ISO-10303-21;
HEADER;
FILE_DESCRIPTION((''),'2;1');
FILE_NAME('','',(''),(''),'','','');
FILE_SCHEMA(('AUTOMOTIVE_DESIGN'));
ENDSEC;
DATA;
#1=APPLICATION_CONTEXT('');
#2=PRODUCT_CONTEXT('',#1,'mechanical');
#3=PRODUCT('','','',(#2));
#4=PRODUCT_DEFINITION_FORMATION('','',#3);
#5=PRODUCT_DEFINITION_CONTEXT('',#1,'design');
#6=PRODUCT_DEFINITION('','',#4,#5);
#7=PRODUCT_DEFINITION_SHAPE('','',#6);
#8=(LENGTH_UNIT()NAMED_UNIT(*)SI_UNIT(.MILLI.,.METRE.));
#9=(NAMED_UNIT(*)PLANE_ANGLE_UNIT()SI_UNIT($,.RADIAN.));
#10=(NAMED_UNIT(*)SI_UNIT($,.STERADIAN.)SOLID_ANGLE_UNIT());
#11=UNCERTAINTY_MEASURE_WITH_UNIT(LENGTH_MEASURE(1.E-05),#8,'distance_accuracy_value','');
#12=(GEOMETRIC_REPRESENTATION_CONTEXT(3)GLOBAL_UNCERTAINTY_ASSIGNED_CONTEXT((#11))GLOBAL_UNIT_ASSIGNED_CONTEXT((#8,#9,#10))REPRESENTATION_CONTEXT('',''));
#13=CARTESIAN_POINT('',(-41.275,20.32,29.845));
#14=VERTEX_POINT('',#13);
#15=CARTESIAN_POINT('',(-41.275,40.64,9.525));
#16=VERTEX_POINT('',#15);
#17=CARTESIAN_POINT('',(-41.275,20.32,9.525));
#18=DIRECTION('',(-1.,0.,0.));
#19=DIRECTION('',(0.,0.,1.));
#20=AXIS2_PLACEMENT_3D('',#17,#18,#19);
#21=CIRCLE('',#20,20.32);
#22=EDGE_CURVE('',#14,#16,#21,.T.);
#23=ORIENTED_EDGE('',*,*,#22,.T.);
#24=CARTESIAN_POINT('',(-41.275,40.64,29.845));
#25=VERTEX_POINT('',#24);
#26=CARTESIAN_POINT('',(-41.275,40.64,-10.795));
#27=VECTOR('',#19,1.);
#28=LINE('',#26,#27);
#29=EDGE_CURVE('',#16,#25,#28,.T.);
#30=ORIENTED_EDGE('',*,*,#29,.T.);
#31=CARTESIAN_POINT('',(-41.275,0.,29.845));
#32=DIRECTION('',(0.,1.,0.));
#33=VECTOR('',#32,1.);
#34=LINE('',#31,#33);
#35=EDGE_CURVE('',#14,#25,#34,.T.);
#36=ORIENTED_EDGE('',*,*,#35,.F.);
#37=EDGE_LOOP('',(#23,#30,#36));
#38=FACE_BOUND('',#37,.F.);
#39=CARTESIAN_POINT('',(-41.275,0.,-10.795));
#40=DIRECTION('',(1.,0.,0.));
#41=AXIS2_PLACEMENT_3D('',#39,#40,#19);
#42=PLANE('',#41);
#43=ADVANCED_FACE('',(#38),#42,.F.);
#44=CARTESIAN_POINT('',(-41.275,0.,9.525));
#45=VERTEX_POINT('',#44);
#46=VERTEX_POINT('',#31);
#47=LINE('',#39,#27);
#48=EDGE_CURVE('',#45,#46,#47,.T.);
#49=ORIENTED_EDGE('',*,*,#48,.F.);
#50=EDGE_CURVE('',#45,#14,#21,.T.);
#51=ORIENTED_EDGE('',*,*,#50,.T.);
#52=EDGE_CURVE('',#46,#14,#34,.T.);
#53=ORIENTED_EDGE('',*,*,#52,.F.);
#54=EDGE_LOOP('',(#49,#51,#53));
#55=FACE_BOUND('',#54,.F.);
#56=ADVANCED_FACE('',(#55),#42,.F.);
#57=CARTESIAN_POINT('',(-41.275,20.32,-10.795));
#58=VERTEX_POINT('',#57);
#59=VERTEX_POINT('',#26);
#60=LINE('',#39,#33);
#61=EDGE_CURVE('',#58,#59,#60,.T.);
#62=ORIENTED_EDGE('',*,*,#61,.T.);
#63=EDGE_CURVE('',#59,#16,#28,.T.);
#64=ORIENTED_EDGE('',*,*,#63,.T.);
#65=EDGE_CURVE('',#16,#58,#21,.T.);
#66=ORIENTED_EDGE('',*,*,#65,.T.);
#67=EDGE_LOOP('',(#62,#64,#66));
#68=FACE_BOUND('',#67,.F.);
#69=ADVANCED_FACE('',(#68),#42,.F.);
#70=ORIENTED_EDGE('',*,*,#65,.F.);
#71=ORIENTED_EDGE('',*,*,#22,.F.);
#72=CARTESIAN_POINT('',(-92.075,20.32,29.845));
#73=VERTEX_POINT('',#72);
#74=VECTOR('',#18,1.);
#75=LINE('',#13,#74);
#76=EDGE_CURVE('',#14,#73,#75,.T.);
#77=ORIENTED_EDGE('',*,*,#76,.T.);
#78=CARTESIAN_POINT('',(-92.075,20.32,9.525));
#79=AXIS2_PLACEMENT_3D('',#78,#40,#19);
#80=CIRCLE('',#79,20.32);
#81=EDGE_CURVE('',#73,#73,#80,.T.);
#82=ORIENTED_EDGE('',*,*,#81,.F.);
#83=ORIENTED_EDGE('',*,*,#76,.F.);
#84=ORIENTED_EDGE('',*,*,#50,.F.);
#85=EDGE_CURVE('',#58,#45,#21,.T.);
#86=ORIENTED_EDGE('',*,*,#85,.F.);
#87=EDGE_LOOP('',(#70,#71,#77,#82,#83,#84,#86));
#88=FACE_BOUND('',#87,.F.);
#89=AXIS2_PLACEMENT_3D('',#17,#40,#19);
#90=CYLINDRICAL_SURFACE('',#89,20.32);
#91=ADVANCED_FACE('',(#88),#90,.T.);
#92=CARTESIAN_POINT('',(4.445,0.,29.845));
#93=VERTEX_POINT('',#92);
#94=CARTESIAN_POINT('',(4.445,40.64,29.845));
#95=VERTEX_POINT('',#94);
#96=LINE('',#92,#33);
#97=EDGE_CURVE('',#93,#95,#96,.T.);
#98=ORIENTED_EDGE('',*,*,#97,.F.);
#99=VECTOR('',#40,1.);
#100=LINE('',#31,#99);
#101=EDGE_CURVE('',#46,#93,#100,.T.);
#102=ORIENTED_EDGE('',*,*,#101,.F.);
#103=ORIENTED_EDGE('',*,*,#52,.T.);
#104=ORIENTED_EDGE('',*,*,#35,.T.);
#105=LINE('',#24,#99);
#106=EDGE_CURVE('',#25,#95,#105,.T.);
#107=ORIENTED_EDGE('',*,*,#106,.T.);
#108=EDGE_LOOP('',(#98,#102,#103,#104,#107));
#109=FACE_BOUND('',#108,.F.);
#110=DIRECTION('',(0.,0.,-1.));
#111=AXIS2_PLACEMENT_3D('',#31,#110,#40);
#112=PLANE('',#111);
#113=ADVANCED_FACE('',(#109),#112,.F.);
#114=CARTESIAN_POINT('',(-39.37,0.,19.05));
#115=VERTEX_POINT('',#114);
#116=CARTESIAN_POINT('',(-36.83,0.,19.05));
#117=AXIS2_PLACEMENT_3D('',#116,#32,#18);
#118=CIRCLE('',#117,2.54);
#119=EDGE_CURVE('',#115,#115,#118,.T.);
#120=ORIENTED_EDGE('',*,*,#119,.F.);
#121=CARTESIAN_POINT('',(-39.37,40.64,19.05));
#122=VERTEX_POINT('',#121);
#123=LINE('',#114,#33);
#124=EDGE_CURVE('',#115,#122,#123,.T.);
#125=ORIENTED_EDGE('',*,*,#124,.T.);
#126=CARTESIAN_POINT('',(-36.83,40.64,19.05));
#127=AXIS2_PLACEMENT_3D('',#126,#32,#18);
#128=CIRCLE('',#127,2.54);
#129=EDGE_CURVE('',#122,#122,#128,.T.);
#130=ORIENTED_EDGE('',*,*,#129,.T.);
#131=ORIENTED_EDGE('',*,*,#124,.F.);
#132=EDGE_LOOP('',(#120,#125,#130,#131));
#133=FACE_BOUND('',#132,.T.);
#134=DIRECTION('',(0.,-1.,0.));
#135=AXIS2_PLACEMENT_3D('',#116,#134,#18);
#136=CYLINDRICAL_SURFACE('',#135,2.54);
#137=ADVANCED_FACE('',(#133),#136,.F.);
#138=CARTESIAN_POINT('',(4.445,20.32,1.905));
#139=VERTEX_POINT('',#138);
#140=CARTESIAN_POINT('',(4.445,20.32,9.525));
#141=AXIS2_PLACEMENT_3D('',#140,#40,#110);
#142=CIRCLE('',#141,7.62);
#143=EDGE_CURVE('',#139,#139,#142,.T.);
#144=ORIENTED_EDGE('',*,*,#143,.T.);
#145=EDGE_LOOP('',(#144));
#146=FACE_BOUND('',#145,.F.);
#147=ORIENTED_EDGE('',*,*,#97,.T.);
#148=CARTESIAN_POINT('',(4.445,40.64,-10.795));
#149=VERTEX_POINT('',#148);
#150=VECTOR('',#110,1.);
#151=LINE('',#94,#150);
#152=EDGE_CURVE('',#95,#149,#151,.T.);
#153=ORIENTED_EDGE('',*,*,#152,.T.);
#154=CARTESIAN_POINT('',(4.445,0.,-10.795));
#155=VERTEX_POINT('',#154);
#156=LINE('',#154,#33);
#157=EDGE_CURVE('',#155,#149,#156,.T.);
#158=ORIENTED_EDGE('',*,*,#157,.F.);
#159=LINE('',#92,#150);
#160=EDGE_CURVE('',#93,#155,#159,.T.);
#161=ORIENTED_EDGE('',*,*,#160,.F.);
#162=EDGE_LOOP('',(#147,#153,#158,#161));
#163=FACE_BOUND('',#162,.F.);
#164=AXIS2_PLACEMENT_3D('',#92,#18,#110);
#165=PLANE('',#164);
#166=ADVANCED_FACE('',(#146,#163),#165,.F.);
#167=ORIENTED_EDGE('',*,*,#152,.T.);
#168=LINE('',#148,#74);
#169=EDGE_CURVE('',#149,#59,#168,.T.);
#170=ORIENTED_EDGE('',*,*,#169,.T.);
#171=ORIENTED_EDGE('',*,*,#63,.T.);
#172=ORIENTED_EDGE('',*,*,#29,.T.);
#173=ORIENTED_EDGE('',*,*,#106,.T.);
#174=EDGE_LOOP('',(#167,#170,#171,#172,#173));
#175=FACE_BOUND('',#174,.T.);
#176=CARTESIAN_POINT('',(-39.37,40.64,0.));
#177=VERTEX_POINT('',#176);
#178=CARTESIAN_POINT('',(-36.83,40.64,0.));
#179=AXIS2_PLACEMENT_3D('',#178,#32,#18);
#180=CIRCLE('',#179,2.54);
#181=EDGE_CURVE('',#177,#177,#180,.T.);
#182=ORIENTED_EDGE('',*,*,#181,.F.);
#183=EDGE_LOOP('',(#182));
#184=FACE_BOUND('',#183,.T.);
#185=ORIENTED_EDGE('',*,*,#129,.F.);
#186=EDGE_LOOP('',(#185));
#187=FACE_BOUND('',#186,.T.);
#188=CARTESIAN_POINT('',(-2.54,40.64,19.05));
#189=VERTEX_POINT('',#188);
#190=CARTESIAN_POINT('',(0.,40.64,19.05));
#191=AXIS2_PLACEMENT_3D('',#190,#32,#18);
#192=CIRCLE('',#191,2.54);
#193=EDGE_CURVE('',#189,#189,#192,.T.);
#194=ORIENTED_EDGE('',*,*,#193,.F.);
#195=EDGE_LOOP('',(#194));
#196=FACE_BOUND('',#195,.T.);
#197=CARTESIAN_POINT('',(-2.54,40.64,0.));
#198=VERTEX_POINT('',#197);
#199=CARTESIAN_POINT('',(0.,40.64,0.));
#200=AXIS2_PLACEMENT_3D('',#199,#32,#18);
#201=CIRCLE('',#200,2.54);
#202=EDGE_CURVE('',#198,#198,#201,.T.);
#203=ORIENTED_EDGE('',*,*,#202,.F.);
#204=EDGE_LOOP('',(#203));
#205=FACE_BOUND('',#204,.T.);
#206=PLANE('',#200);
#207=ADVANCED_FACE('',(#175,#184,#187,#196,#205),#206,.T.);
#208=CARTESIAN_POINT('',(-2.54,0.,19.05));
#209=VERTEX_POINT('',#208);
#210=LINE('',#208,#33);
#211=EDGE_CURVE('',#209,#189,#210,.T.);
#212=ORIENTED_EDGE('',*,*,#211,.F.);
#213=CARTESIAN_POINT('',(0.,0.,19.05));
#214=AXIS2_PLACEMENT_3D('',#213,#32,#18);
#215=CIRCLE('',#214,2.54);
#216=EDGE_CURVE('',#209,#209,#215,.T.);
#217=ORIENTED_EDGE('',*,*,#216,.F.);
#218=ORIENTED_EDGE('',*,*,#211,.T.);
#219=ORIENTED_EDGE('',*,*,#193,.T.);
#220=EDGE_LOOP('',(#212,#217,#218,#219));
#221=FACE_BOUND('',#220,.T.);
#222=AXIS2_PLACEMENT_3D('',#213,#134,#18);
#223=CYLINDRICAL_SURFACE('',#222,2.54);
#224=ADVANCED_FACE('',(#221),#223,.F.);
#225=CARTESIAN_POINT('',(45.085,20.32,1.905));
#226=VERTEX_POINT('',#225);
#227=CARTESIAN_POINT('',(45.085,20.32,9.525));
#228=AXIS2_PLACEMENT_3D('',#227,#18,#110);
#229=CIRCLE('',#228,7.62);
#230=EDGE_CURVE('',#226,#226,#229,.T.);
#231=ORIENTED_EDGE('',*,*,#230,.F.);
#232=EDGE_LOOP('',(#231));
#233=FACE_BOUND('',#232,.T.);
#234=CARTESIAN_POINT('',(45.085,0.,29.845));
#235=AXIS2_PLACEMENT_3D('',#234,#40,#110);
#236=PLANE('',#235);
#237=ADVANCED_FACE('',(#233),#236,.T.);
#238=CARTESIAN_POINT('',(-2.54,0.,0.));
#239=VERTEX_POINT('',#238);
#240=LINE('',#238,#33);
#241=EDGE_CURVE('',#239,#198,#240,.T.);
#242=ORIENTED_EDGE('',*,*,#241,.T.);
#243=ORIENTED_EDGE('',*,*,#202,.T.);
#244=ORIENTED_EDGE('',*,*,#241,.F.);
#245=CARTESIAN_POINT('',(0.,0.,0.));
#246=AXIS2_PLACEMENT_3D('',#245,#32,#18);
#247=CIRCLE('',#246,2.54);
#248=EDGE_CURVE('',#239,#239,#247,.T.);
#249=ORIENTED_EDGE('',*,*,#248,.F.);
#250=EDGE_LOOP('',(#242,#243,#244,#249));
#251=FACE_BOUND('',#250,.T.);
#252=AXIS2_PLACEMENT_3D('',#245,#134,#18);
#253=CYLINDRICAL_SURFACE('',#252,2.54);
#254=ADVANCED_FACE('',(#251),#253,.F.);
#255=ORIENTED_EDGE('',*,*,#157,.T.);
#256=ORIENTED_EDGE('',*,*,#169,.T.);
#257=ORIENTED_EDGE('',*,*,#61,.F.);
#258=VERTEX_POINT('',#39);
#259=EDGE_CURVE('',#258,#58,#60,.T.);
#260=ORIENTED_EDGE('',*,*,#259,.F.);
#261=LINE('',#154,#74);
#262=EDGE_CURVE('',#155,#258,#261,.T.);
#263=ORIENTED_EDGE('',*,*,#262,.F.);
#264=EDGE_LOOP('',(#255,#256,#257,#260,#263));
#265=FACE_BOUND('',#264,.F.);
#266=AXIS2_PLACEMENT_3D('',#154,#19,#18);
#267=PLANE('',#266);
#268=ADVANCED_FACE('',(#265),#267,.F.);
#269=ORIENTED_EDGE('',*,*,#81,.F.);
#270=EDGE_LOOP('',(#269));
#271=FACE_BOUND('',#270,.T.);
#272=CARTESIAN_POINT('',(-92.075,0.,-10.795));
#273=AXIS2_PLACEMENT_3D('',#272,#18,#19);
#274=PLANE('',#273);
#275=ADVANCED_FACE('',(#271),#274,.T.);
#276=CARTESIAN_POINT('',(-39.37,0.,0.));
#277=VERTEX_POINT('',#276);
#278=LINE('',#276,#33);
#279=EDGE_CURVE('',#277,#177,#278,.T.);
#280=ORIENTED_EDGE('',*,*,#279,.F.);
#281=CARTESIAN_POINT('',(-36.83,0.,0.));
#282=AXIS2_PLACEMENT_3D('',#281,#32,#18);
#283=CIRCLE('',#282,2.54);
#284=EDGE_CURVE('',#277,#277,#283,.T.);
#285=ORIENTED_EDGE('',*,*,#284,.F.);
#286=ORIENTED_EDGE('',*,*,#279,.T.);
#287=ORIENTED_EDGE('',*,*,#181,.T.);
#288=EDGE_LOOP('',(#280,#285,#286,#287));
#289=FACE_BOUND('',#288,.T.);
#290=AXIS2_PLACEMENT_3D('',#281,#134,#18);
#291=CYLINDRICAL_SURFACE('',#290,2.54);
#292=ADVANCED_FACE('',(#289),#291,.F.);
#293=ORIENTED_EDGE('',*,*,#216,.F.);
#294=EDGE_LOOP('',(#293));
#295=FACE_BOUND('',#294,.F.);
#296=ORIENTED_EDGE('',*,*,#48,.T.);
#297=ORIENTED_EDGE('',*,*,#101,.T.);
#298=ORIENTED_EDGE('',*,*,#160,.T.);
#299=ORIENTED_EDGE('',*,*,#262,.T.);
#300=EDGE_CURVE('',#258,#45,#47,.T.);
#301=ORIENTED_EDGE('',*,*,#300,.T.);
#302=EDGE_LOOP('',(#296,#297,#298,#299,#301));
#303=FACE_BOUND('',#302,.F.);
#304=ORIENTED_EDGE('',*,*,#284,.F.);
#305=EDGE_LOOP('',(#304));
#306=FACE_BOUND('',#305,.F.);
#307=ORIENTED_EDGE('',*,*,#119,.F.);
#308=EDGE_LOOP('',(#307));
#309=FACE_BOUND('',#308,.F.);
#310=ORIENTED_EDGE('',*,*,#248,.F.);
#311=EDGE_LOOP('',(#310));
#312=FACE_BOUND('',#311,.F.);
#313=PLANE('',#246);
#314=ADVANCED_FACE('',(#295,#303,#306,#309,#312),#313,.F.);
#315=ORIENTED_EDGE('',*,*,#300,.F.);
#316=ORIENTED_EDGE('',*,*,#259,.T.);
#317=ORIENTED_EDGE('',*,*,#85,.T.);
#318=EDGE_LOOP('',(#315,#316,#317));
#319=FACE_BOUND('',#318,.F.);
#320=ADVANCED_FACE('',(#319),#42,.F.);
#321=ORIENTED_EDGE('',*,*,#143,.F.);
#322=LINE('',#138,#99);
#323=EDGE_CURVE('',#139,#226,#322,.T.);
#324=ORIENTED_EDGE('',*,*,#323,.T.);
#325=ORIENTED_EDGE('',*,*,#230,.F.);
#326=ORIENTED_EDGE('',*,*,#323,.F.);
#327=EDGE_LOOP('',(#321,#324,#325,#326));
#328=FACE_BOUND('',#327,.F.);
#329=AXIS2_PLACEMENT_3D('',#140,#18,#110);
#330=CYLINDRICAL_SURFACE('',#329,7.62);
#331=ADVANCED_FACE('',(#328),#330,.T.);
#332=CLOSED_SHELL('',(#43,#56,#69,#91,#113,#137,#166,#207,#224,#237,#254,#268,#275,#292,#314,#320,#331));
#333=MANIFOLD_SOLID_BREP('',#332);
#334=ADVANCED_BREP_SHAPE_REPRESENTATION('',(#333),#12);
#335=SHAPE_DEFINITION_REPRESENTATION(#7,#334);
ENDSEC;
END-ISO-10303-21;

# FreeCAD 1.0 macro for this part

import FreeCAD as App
import Part
import Sketcher

V = App.Vector
Q = App.Units.Quantity


def add_polygon(sketch, points):
    """Adds a closed chain of lines whose ends are joined by coincident constraints."""
    first, n = sketch.GeometryCount, len(points)
    for a, b in zip(points, points[1:] + points[:1]):
        sketch.addGeometry(Part.LineSegment(App.Vector(*a, 0), App.Vector(*b, 0)), False)
    for i in range(n):
        sketch.addConstraint(Sketcher.Constraint("Coincident", first + i, 2, first + (i + 1) % n, 1))

doc = App.newDocument("Part")
params = doc.addObject("Spreadsheet::Sheet", "Params")
for row, (alias, value) in enumerate([
    ("sketch1_diameter", "0.2 in"),
    ("sketch1_width", "1.8 in"),
    ("sketch1_height", "1.6 in"),
    ("pad1_length", "1.6 in"),
    ("sketch2_diameter", "0.6 in"),
    ("pad2_length", "1.6 in"),
    ("sketch3_diameter", "1.6 in"),
    ("pad3_length", "2 in"),
], start=1):
    params.set(f"A{row}", alias)
    params.set(f"B{row}", "=" + value)
    params.setAlias(f"B{row}", alias)

body = doc.addObject("PartDesign::Body", "Body")

# Sketch on XZ plane
sketch1 = body.newObject("Sketcher::SketchObject", "Sketch")
sketch1.AttachmentSupport = (doc.getObject("XZ_Plane"), [""])
sketch1.MapMode = "FlatFace"
add_polygon(sketch1, [(-41.3, -10.8), (-41.3, 29.8), (4.4, 29.8), (4.4, -10.8)])  # lines 0-3
sketch1.addGeometry(Part.Circle(V(0, 0, 0), V(0, 0, 1), 2.5), False)  # 4
sketch1.addGeometry(Part.Circle(V(-36.8, 0, 0), V(0, 0, 1), 2.5), False)  # 5
sketch1.addGeometry(Part.Circle(V(0, 19.1, 0), V(0, 0, 1), 2.5), False)  # 6
sketch1.addGeometry(Part.Circle(V(-36.8, 19.1, 0), V(0, 0, 1), 2.5), False)  # 7
sketch1.addConstraint([
    Sketcher.Constraint("Vertical", 0),
    Sketcher.Constraint("Horizontal", 1),
    Sketcher.Constraint("Vertical", 2),
    Sketcher.Constraint("Horizontal", 3),
    Sketcher.Constraint("Coincident", 4, 3, -1, 1),
    Sketcher.Constraint("Equal", 4, 5),
    Sketcher.Constraint("Equal", 5, 6),
    Sketcher.Constraint("Equal", 6, 7),
    Sketcher.Constraint("PointOnObject", 5, 3, -1),
    Sketcher.Constraint("PointOnObject", 6, 3, -2),
    Sketcher.Constraint("Horizontal", 6, 3, 7, 3),
    Sketcher.Constraint("Vertical", 5, 3, 7, 3),
    Sketcher.Constraint("Diameter", 4, Q("0.2 in")),
    Sketcher.Constraint("DistanceX", 1, 1, 1, 2, Q("1.8 in")),
    Sketcher.Constraint("DistanceY", 0, 1, 0, 2, Q("1.6 in")),
    Sketcher.Constraint("DistanceX", 5, 3, -1, 1, Q("1.45 in")),
    Sketcher.Constraint("DistanceY", -1, 1, 6, 3, Q("0.75 in")),
    Sketcher.Constraint("DistanceX", -1, 1, 1, 2, Q("0.175 in")),
    Sketcher.Constraint("DistanceY", 2, 2, -1, 1, Q("0.425 in")),
])
sketch1.setExpression("Constraints[16]", "Params.sketch1_diameter")
sketch1.setExpression("Constraints[17]", "Params.sketch1_width")
sketch1.setExpression("Constraints[18]", "Params.sketch1_height")
pad1 = body.newObject("PartDesign::Pad", "Pad")
pad1.Profile = sketch1
pad1.setExpression("Length", "Params.pad1_length")
pad1.Reversed = True

# Sketch on YZ plane
sketch2 = body.newObject("Sketcher::SketchObject", "Sketch001")
sketch2.AttachmentSupport = (doc.getObject("YZ_Plane"), [""])
sketch2.MapMode = "FlatFace"
sketch2.AttachmentOffset = App.Placement(V(0, 0, 0.175 * 25.4), App.Rotation())
sketch2.addGeometry(Part.Circle(V(20, 10, 0), V(0, 0, 1), 8), False)
sketch2.addConstraint([
    Sketcher.Constraint("Diameter", 0, Q("0.6 in")),
    Sketcher.Constraint("DistanceX", -1, 1, 0, 3, Q("0.8 in")),
    Sketcher.Constraint("DistanceY", -1, 1, 0, 3, Q("0.375 in")),
])
sketch2.setExpression("Constraints[0]", "Params.sketch2_diameter")
pad2 = body.newObject("PartDesign::Pad", "Pad001")
pad2.Profile = sketch2
pad2.setExpression("Length", "Params.pad2_length")

# Sketch on YZ plane
sketch3 = body.newObject("Sketcher::SketchObject", "Sketch002")
sketch3.AttachmentSupport = (doc.getObject("YZ_Plane"), [""])
sketch3.MapMode = "FlatFace"
sketch3.AttachmentOffset = App.Placement(V(0, 0, -1.625 * 25.4), App.Rotation())
sketch3.addGeometry(Part.Circle(V(20, 10, 0), V(0, 0, 1), 20), False)
sketch3.addConstraint([
    Sketcher.Constraint("Diameter", 0, Q("1.6 in")),
    Sketcher.Constraint("DistanceX", -1, 1, 0, 3, Q("0.8 in")),
    Sketcher.Constraint("DistanceY", -1, 1, 0, 3, Q("0.375 in")),
])
sketch3.setExpression("Constraints[0]", "Params.sketch3_diameter")
pad3 = body.newObject("PartDesign::Pad", "Pad002")
pad3.Profile = sketch3
pad3.setExpression("Length", "Params.pad3_length")
pad3.Reversed = True

doc.recompute()
